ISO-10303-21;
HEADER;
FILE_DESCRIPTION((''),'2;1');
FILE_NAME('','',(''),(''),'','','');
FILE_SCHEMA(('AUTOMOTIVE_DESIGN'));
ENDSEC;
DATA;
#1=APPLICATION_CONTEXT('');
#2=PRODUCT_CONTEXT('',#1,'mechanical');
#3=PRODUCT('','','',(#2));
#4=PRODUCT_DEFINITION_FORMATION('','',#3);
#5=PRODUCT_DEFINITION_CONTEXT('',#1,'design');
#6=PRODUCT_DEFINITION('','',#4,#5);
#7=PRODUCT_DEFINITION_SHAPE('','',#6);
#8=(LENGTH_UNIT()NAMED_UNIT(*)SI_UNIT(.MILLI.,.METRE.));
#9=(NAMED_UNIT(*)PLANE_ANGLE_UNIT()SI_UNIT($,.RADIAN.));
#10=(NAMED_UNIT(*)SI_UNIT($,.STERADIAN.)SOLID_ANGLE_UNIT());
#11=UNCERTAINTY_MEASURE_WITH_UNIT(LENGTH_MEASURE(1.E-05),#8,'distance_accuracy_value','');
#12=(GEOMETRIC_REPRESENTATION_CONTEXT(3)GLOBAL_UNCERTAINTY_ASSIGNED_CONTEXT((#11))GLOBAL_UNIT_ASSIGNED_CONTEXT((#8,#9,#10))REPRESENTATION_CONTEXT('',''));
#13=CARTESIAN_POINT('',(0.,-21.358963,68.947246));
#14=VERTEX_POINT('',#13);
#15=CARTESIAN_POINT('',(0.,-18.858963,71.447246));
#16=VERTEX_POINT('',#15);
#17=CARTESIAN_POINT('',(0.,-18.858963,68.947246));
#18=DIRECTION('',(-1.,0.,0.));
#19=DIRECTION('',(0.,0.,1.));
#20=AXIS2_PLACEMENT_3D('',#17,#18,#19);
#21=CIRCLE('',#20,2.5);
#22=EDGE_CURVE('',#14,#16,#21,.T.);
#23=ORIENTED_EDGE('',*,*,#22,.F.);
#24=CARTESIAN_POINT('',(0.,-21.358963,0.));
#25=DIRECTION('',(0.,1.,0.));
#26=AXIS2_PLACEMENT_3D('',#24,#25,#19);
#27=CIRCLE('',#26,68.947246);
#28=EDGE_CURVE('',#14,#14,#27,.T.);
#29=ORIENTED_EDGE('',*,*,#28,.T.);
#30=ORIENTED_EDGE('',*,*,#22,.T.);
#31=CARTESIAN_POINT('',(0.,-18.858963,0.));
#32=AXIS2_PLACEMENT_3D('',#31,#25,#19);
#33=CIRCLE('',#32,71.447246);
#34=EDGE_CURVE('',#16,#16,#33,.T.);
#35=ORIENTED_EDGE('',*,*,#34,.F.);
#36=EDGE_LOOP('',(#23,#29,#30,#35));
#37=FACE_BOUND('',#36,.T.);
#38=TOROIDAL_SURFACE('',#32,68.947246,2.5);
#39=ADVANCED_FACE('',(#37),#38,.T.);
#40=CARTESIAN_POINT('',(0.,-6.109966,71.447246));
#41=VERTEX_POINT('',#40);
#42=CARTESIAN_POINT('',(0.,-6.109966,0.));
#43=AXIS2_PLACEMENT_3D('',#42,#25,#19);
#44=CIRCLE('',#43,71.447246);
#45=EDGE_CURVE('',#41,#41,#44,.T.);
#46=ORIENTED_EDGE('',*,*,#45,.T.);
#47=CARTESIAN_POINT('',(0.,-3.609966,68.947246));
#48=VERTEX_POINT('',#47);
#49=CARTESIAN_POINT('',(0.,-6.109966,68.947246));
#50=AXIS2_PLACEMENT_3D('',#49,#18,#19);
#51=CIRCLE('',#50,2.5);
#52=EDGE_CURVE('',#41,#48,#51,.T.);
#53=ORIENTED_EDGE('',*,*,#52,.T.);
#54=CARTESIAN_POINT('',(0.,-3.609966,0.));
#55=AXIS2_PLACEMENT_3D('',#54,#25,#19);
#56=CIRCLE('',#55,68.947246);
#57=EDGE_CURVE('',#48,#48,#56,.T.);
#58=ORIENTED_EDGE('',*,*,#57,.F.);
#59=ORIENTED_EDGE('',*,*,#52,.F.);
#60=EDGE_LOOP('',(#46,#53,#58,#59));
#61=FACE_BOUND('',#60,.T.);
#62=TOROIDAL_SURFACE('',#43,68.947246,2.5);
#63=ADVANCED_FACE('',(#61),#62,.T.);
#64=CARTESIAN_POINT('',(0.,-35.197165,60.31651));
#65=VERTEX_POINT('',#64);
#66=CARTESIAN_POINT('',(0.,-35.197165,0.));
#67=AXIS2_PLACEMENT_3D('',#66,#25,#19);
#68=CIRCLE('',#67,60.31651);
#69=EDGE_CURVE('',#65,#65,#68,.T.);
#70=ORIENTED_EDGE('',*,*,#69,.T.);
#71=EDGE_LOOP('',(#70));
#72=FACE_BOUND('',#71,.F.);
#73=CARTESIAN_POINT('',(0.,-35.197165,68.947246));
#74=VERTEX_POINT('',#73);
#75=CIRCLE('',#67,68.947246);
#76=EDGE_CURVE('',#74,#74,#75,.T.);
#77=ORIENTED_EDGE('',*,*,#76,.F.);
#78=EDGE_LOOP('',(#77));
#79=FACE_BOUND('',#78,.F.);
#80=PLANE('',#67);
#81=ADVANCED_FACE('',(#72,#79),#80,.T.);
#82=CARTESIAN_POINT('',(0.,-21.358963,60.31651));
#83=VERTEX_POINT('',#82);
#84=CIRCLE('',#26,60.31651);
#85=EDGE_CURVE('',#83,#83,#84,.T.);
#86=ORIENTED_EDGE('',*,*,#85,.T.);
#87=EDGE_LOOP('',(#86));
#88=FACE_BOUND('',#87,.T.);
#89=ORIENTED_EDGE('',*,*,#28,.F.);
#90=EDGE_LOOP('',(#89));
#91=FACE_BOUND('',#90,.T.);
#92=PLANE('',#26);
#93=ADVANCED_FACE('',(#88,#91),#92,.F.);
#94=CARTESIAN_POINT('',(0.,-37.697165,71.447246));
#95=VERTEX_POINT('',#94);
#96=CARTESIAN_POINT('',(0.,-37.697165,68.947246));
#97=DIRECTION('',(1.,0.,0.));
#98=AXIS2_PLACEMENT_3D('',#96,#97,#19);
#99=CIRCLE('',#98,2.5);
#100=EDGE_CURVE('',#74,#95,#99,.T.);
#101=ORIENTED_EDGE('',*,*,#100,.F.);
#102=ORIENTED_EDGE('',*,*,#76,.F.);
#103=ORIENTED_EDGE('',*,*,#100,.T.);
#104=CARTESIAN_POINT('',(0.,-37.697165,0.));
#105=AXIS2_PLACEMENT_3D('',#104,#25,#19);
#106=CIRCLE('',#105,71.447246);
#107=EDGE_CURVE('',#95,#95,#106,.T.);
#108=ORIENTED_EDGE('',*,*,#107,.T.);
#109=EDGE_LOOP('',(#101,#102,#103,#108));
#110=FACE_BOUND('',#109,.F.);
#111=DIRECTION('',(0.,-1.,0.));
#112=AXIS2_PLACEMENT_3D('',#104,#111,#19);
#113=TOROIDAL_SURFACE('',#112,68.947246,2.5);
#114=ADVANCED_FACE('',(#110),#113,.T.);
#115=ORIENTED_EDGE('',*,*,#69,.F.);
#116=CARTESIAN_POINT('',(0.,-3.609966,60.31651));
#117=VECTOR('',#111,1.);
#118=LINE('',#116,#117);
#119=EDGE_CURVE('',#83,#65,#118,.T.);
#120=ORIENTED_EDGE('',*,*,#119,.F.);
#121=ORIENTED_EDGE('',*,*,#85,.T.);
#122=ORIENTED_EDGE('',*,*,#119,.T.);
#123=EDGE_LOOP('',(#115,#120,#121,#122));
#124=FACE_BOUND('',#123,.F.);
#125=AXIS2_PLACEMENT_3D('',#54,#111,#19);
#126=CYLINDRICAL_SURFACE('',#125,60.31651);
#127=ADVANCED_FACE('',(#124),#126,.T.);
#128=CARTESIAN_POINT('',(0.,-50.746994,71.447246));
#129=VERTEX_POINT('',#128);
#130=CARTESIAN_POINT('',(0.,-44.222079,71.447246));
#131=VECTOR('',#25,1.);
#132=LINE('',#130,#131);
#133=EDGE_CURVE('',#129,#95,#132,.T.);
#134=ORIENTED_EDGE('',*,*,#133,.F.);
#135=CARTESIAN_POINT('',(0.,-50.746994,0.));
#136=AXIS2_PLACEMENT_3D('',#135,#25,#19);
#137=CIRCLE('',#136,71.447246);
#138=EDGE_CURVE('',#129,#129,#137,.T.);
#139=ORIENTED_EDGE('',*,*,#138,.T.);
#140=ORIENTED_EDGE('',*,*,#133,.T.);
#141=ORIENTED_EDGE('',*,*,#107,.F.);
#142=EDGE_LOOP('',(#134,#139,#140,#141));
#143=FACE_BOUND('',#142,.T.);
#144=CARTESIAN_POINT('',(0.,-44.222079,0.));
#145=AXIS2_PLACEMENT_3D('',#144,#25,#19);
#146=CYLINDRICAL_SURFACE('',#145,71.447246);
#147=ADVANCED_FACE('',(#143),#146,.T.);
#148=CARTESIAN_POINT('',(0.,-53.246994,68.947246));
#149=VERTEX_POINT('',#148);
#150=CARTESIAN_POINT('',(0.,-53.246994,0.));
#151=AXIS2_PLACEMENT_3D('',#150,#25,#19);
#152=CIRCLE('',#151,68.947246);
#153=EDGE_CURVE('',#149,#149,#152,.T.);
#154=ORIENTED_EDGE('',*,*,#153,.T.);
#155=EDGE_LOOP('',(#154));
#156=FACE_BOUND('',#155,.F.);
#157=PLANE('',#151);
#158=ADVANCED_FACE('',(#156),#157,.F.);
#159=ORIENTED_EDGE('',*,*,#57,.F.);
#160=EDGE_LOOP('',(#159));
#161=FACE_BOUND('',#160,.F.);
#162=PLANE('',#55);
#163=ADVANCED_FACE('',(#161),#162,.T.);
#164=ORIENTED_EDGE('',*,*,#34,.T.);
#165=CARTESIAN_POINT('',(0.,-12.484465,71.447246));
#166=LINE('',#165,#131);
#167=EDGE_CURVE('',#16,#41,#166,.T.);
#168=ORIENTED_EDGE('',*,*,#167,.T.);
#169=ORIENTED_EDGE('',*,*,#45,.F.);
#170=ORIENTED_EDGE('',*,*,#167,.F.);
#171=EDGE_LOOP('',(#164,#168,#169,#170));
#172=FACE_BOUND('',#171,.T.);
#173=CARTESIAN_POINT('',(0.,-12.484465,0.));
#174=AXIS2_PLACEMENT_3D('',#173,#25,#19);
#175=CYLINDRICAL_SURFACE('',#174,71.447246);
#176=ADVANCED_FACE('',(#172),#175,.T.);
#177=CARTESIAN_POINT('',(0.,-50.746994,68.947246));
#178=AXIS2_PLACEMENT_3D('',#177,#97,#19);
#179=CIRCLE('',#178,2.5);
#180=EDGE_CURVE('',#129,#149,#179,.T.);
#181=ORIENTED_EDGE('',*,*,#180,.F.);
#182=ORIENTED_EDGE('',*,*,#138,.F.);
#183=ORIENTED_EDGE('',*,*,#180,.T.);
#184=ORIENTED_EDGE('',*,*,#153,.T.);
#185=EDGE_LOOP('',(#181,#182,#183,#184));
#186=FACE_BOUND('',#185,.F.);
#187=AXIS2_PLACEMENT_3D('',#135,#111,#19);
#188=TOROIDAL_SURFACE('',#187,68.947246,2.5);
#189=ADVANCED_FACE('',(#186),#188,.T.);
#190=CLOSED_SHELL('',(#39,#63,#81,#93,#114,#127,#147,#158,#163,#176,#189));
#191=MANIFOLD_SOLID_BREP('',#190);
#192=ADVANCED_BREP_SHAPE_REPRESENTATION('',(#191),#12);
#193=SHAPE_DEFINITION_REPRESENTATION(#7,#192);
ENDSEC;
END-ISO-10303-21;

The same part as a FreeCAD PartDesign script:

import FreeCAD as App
import Part
import Sketcher

V = App.Vector
Q = App.Units.Quantity


def edges_at(feature, points):
    """Names of the edges that pass closest to the given points."""
    edges = feature.Shape.Edges
    near = lambda p: min(range(len(edges)), key=lambda i: edges[i].distToShape(Part.Vertex(*p))[0])
    return sorted({f"Edge{near(p) + 1}" for p in points})

doc = App.newDocument("Part")
body = doc.addObject("PartDesign::Body", "Body")

sketch1 = doc.addObject("Sketcher::SketchObject", "Sketch")
body.addObject(sketch1)
sketch1.AttachmentSupport = (doc.YZ_Plane, [""])
sketch1.MapMode = "FlatFace"
sketch1.addGeometry(Part.LineSegment(V(-53, 0, 0), V(-4, 0, 0)), False)
sketch1.addGeometry(Part.LineSegment(V(-4, 0, 0), V(-4, 71, 0)), False)
sketch1.addGeometry(Part.LineSegment(V(-4, 71, 0), V(-21, 71, 0)), False)
sketch1.addGeometry(Part.LineSegment(V(-21, 71, 0), V(-21, 60, 0)), False)
sketch1.addGeometry(Part.LineSegment(V(-21, 60, 0), V(-35, 60, 0)), False)
sketch1.addGeometry(Part.LineSegment(V(-35, 60, 0), V(-35, 71, 0)), False)
sketch1.addGeometry(Part.LineSegment(V(-35, 71, 0), V(-53, 71, 0)), False)
sketch1.addGeometry(Part.LineSegment(V(-53, 71, 0), V(-53, 0, 0)), False)
sketch1.addConstraint(Sketcher.Constraint("Coincident", 0, 2, 1, 1))
sketch1.addConstraint(Sketcher.Constraint("Coincident", 1, 2, 2, 1))
sketch1.addConstraint(Sketcher.Constraint("Coincident", 2, 2, 3, 1))
sketch1.addConstraint(Sketcher.Constraint("Coincident", 3, 2, 4, 1))
sketch1.addConstraint(Sketcher.Constraint("Coincident", 4, 2, 5, 1))
sketch1.addConstraint(Sketcher.Constraint("Coincident", 5, 2, 6, 1))
sketch1.addConstraint(Sketcher.Constraint("Coincident", 6, 2, 7, 1))
sketch1.addConstraint(Sketcher.Constraint("Coincident", 7, 2, 0, 1))
sketch1.addConstraint(Sketcher.Constraint("Horizontal", 0))
sketch1.addConstraint(Sketcher.Constraint("Vertical", 1))
sketch1.addConstraint(Sketcher.Constraint("Horizontal", 2))
sketch1.addConstraint(Sketcher.Constraint("Vertical", 3))
sketch1.addConstraint(Sketcher.Constraint("Horizontal", 4))
sketch1.addConstraint(Sketcher.Constraint("Vertical", 5))
sketch1.addConstraint(Sketcher.Constraint("Horizontal", 6))
sketch1.addConstraint(Sketcher.Constraint("Vertical", 7))
sketch1.addConstraint(Sketcher.Constraint("PointOnObject", 0, 2, -1))
sketch1.addConstraint(Sketcher.Constraint("Horizontal", 2, 2, 5, 2))
sketch1.addConstraint(Sketcher.Constraint("DistanceX", 4, 2, 4, 1, Q("13.838202 mm")))
sketch1.addConstraint(Sketcher.Constraint("DistanceX", 6, 2, 6, 1, Q("18.049829 mm")))
sketch1.addConstraint(Sketcher.Constraint("DistanceX", 4, 2, 1, 2, Q("31.587199 mm")))
sketch1.addConstraint(Sketcher.Constraint("DistanceY", 1, 1, 1, 2, Q("71.447246 mm")))
sketch1.addConstraint(Sketcher.Constraint("DistanceY", 3, 2, 3, 1, Q("11.130735 mm")))
sketch1.addConstraint(Sketcher.Constraint("DistanceX", 0, 2, -1, 1, Q("3.609966 mm")))
revolution = doc.addObject("PartDesign::Revolution", "Revolution")
body.addObject(revolution)
revolution.Profile = sketch1
revolution.ReferenceAxis = (sketch1, ["H_Axis"])
revolution.Angle = 360
doc.recompute()

fillet = doc.addObject("PartDesign::Fillet", "Fillet")
body.addObject(fillet)
fillet.Base = (revolution, edges_at(revolution, [(0, -35.197, -71.447)]))
fillet.Radius = 2.5
doc.recompute()

fillet2 = doc.addObject("PartDesign::Fillet", "Fillet001")
body.addObject(fillet2)
fillet2.Base = (fillet, edges_at(fillet, [(0, -21.359, -71.447)]))
fillet2.Radius = 2.5
doc.recompute()

fillet3 = doc.addObject("PartDesign::Fillet", "Fillet002")
body.addObject(fillet3)
fillet3.Base = (fillet2, edges_at(fillet2, [(0, -53.247, -71.447)]))
fillet3.Radius = 2.5
doc.recompute()

fillet4 = doc.addObject("PartDesign::Fillet", "Fillet003")
body.addObject(fillet4)
fillet4.Base = (fillet3, edges_at(fillet3, [(0, -3.61, -71.447)]))
fillet4.Radius = 2.5

doc.recompute()
